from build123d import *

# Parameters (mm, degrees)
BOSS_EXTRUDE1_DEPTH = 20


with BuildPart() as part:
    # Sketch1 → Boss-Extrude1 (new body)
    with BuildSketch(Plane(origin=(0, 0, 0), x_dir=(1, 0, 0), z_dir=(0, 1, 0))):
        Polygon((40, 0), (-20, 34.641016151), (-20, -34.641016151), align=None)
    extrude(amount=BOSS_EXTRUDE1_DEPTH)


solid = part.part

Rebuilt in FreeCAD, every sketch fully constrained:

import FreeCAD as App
import Part
import Sketcher
Q = App.Units.Quantity

doc = App.newDocument("Part")
params = doc.addObject("Spreadsheet::Sheet", "Params")
for row, (alias, value) in enumerate([
    ("pad1_length", "20 mm"),
], start=1):
    params.set(f"A{row}", alias)
    params.set(f"B{row}", "=" + value)
    params.setAlias(f"B{row}", alias)

body = doc.addObject("PartDesign::Body", "Body")

# Sketch on XZ plane
sketch1 = body.newObject("Sketcher::SketchObject", "Sketch")
sketch1.AttachmentSupport = (doc.getObject("XZ_Plane"), [""])
sketch1.MapMode = "FlatFace"
sketch1.addGeometry(Part.LineSegment(App.Vector(40, 0, 0), App.Vector(-20, -34.641016, 0)), False)
sketch1.addGeometry(Part.LineSegment(App.Vector(-20, -34.641016, 0), App.Vector(-20, 34.641016, 0)), False)
sketch1.addGeometry(Part.LineSegment(App.Vector(-20, 34.641016, 0), App.Vector(40, 0, 0)), False)
sketch1.addConstraint(Sketcher.Constraint("Coincident", 0, 2, 1, 1))
sketch1.addConstraint(Sketcher.Constraint("Coincident", 1, 2, 2, 1))
sketch1.addConstraint(Sketcher.Constraint("Coincident", 2, 2, 0, 1))
sketch1.addConstraint(Sketcher.Constraint("Vertical", 1))
sketch1.addConstraint(Sketcher.Constraint("PointOnObject", 2, 2, -1))
sketch1.addConstraint(Sketcher.Constraint("Equal", 0, 2))
sketch1.addConstraint(Sketcher.Constraint("Angle", 0, Q("-150 deg")))
sketch1.addConstraint(Sketcher.Constraint("DistanceX", 0, 2, -1, 1, 20.0))
sketch1.addConstraint(Sketcher.Constraint("DistanceX", -1, 1, 2, 2, 40.0))
pad1 = body.newObject("PartDesign::Pad", "Pad")
pad1.Profile = sketch1
pad1.setExpression("Length", "Params.pad1_length")
pad1.Reversed = True

doc.recompute()
